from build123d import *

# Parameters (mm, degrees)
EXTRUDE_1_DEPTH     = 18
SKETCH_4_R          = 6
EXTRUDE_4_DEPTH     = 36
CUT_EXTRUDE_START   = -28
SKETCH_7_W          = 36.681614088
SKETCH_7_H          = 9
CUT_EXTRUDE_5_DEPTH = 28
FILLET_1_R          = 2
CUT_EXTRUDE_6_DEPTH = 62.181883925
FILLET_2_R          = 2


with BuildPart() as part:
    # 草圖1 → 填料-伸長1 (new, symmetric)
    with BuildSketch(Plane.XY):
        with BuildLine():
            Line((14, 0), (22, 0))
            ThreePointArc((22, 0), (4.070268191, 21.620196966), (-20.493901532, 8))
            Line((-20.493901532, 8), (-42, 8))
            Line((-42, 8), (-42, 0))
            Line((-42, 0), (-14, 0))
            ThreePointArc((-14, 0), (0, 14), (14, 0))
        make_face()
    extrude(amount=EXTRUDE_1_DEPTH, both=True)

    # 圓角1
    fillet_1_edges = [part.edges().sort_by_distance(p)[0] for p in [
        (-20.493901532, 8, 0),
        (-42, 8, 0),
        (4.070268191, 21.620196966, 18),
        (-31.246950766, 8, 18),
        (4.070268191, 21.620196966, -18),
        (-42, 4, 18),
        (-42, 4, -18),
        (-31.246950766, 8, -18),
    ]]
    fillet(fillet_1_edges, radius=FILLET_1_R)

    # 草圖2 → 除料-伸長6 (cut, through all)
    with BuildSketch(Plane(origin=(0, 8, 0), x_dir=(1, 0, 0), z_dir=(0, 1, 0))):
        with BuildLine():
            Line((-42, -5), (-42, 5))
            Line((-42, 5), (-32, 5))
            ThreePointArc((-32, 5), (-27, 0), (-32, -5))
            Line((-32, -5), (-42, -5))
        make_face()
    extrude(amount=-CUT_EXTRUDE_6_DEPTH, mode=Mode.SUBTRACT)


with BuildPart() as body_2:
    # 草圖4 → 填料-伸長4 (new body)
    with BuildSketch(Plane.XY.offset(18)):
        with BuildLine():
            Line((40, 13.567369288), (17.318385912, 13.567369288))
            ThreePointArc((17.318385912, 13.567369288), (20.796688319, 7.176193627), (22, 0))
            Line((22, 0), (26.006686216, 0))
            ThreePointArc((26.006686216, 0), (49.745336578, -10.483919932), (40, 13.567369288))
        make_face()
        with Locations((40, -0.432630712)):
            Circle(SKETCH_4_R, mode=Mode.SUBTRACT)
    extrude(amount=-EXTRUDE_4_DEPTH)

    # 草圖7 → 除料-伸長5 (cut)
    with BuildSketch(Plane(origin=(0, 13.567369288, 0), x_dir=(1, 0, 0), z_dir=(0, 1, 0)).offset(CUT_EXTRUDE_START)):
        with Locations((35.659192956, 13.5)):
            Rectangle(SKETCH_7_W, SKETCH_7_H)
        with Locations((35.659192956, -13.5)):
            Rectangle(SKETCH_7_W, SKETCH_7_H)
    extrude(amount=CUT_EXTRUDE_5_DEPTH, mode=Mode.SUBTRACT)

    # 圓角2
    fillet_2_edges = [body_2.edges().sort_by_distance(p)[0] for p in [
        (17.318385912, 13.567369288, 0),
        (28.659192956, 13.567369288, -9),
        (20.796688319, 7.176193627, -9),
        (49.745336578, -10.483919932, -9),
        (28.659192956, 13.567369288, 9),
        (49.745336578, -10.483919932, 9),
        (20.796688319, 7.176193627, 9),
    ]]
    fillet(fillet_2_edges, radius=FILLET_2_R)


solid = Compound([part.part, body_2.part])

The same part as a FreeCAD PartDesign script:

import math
import FreeCAD as App
import Part
import Sketcher
from FreeCAD import Vector


def edges_at(feature, points):
    """Names of the edges that pass closest to the given points."""
    edges = feature.Shape.Edges
    near = lambda p: min(range(len(edges)), key=lambda i: edges[i].distToShape(Part.Vertex(*p))[0])
    return sorted({f"Edge{near(p) + 1}" for p in points})

doc = App.newDocument("Part")
params = doc.addObject("Spreadsheet::Sheet", "Params")
for row, (alias, value) in enumerate([
    ("sketch1_radius", "22 mm"),
    ("sketch1_radius2", "14 mm"),
    ("sketch1_width", "28 mm"),
    ("pad1_length", "36 mm"),
    ("fillet_radius", "2 mm"),
    ("sketch2_radius", "5 mm"),
    ("sketch3_diameter", "12 mm"),
    ("sketch3_radius", "22 mm"),
    ("sketch3_radius2", "14 mm"),
    ("pad2_length", "36 mm"),
    ("sketch4_height", "9 mm"),
    ("pocket2_length", "28 mm"),
    ("fillet2_radius", "2 mm"),
], start=1):
    params.set(f"A{row}", alias)
    params.set(f"B{row}", "=" + value)
    params.setAlias(f"B{row}", alias)

body = doc.addObject("PartDesign::Body", "Body")

# Sketch on XY plane
sketch1 = doc.addObject("Sketcher::SketchObject", "Sketch")
body.addObject(sketch1)
sketch1.AttachmentSupport = (doc.XY_Plane, [""])
sketch1.MapMode = "FlatFace"
sketch1.addGeometry([
    Part.LineSegment(Vector(14, 0, 0), Vector(22, 0, 0)),  # 0
    Part.ArcOfCircle(Part.Circle(Vector(0, 0, 0), Vector(0, 0, 1), 22), math.radians(0), math.radians(158.676314)),  # 1
    Part.LineSegment(Vector(-20.493902, 8, 0), Vector(-42, 8, 0)),  # 2
    Part.LineSegment(Vector(-42, 8, 0), Vector(-42, 0, 0)),  # 3
    Part.LineSegment(Vector(-42, 0, 0), Vector(-14, 0, 0)),  # 4
    Part.ArcOfCircle(Part.Circle(Vector(0, 0, 0), Vector(0, 0, 1), 14), math.radians(0), math.radians(180)),  # 5
], False)
sketch1.addConstraint([
    Sketcher.Constraint("Coincident", 0, 2, 1, 1),
    Sketcher.Constraint("Coincident", 1, 2, 2, 1),
    Sketcher.Constraint("Coincident", 2, 2, 3, 1),
    Sketcher.Constraint("Coincident", 3, 2, 4, 1),
    Sketcher.Constraint("Coincident", 4, 2, 5, 2),
    Sketcher.Constraint("Coincident", 5, 1, 0, 1),
    Sketcher.Constraint("Horizontal", 0),
    Sketcher.Constraint("Horizontal", 2),
    Sketcher.Constraint("Vertical", 3),
    Sketcher.Constraint("Horizontal", 4),
    Sketcher.Constraint("Coincident", 1, 3, -1, 1),
    Sketcher.Constraint("Coincident", 5, 3, -1, 1),
    Sketcher.Constraint("PointOnObject", 0, 2, -1),
    Sketcher.Constraint("PointOnObject", 3, 2, -1),
    Sketcher.Constraint("Equal", 0, 3),
    Sketcher.Constraint("Radius", 1, 22.0),
    Sketcher.Constraint("Radius", 5, 14.0),
    Sketcher.Constraint("DistanceX", 4, 1, 4, 2, 28.0),
])
sketch1.setExpression("Constraints[15]", "Params.sketch1_radius")
sketch1.setExpression("Constraints[16]", "Params.sketch1_radius2")
sketch1.setExpression("Constraints[17]", "Params.sketch1_width")
pad1 = doc.addObject("PartDesign::Pad", "Pad")
body.addObject(pad1)
pad1.Profile = sketch1
pad1.setExpression("Length", "Params.pad1_length")
pad1.Midplane = True
doc.recompute()

fillet = doc.addObject("PartDesign::Fillet", "Fillet")
body.addObject(fillet)
fillet.Base = (pad1, edges_at(pad1, [
    (-20.494, 8, 0),
    (-42, 8, 0),
    (4.07, 21.62, 18),
    (-31.247, 8, 18),
    (4.07, 21.62, -18),
    (-42, 4, 18),
    (-42, 4, -18),
    (-31.247, 8, -18),
]))
fillet.setExpression("Radius", "Params.fillet_radius")

# Sketch on XZ plane
sketch2 = doc.addObject("Sketcher::SketchObject", "Sketch001")
body.addObject(sketch2)
sketch2.AttachmentSupport = (doc.XZ_Plane, [""])
sketch2.MapMode = "FlatFace"
sketch2.AttachmentOffset = App.Placement(Vector(0, 0, -8), App.Rotation())
sketch2.addGeometry([
    Part.LineSegment(Vector(-42, -5, 0), Vector(-42, 5, 0)),
    Part.LineSegment(Vector(-42, 5, 0), Vector(-32, 5, 0)),
    Part.ArcOfCircle(Part.Circle(Vector(-32, 0, 0), Vector(0, 0, 1), 5), math.radians(-90), math.radians(90)),
    Part.LineSegment(Vector(-32, -5, 0), Vector(-42, -5, 0)),
], False)
sketch2.addConstraint([
    Sketcher.Constraint("Coincident", 0, 2, 1, 1),
    Sketcher.Constraint("Tangent", 1, 2, 2, 2),
    Sketcher.Constraint("Tangent", 2, 1, 3, 1),
    Sketcher.Constraint("Coincident", 3, 2, 0, 1),
    Sketcher.Constraint("Vertical", 0),
    Sketcher.Constraint("Horizontal", 1),
    Sketcher.Constraint("Horizontal", 3),
    Sketcher.Constraint("PointOnObject", 2, 3, -1),
    Sketcher.Constraint("Equal", 3, 0),
    Sketcher.Constraint("Radius", 2, 5.0),
    Sketcher.Constraint("DistanceX", 2, 3, -1, 1, 32.0),
])
sketch2.setExpression("Constraints[9]", "Params.sketch2_radius")
pocket1 = doc.addObject("PartDesign::Pocket", "Pocket")
body.addObject(pocket1)
pocket1.Profile = sketch2
pocket1.Type = "ThroughAll"
pocket1.Reversed = True
body2 = doc.addObject("PartDesign::Body", "Body001")

# Sketch on XY plane
sketch3 = doc.addObject("Sketcher::SketchObject", "Sketch002")
body2.addObject(sketch3)
sketch3.AttachmentSupport = (doc.getObject("XY_Plane001"), [""])
sketch3.MapMode = "FlatFace"
sketch3.AttachmentOffset = App.Placement(Vector(0, 0, 18), App.Rotation())
sketch3.addGeometry([
    Part.LineSegment(Vector(40, 13.567369, 0), Vector(17.318386, 13.567369, 0)),  # 0
    Part.ArcOfCircle(Part.Circle(Vector(0, 0, 0), Vector(0, 0, 1), 22), math.radians(0), math.radians(38.075448)),  # 1
    Part.LineSegment(Vector(22, 0, 0), Vector(26.006686, 0, 0)),  # 2
    Part.ArcOfCircle(Part.Circle(Vector(40, -0.432631, 0), Vector(0, 0, 1), 14), math.radians(178.229153), math.radians(450)),  # 3
    Part.Circle(Vector(40, -0.432631, 0), Vector(0, 0, 1), 6),  # 4
], False)
sketch3.addConstraint([
    Sketcher.Constraint("Coincident", 0, 2, 1, 2),
    Sketcher.Constraint("Coincident", 1, 1, 2, 1),
    Sketcher.Constraint("Coincident", 2, 2, 3, 1),
    Sketcher.Constraint("Tangent", 3, 2, 0, 1),
    Sketcher.Constraint("Horizontal", 0),
    Sketcher.Constraint("Horizontal", 2),
    Sketcher.Constraint("Coincident", 1, 3, -1, 1),
    Sketcher.Constraint("Coincident", 4, 3, 3, 3),
    Sketcher.Constraint("PointOnObject", 1, 1, -1),
    Sketcher.Constraint("Diameter", 4, 12.0),
    Sketcher.Constraint("Radius", 1, 22.0),
    Sketcher.Constraint("Radius", 3, 14.0),
    Sketcher.Constraint("DistanceX", -1, 1, 3, 3, 40.0),
    Sketcher.Constraint("DistanceX", 0, 2, 2, 2, 8.6883),
])
sketch3.setExpression("Constraints[9]", "Params.sketch3_diameter")
sketch3.setExpression("Constraints[10]", "Params.sketch3_radius")
sketch3.setExpression("Constraints[11]", "Params.sketch3_radius2")
pad2 = doc.addObject("PartDesign::Pad", "Pad001")
body2.addObject(pad2)
pad2.Profile = sketch3
pad2.setExpression("Length", "Params.pad2_length")
pad2.Reversed = True

# Sketch on XZ plane
sketch4 = doc.addObject("Sketcher::SketchObject", "Sketch003")
body2.addObject(sketch4)
sketch4.AttachmentSupport = (doc.getObject("XZ_Plane001"), [""])
sketch4.MapMode = "FlatFace"
sketch4.AttachmentOffset = App.Placement(Vector(0, 0, 14.432631), App.Rotation())
sketch4.addGeometry([
    Part.LineSegment(Vector(17.318386, -18, 0), Vector(17.318386, -9, 0)),  # 0
    Part.LineSegment(Vector(17.318386, -9, 0), Vector(54, -9, 0)),  # 1
    Part.LineSegment(Vector(54, -9, 0), Vector(54, -18, 0)),  # 2
    Part.LineSegment(Vector(54, -18, 0), Vector(17.318386, -18, 0)),  # 3
    Part.LineSegment(Vector(17.318386, 9, 0), Vector(17.318386, 18, 0)),  # 4
    Part.LineSegment(Vector(17.318386, 18, 0), Vector(54, 18, 0)),  # 5
    Part.LineSegment(Vector(54, 18, 0), Vector(54, 9, 0)),  # 6
    Part.LineSegment(Vector(54, 9, 0), Vector(17.318386, 9, 0)),  # 7
], False)
sketch4.addConstraint([
    Sketcher.Constraint("Coincident", 0, 2, 1, 1),
    Sketcher.Constraint("Coincident", 1, 2, 2, 1),
    Sketcher.Constraint("Coincident", 2, 2, 3, 1),
    Sketcher.Constraint("Coincident", 3, 2, 0, 1),
    Sketcher.Constraint("Coincident", 4, 2, 5, 1),
    Sketcher.Constraint("Coincident", 5, 2, 6, 1),
    Sketcher.Constraint("Coincident", 6, 2, 7, 1),
    Sketcher.Constraint("Coincident", 7, 2, 4, 1),
    Sketcher.Constraint("Vertical", 0),
    Sketcher.Constraint("Horizontal", 1),
    Sketcher.Constraint("Vertical", 2),
    Sketcher.Constraint("Horizontal", 3),
    Sketcher.Constraint("Vertical", 4),
    Sketcher.Constraint("Horizontal", 5),
    Sketcher.Constraint("Vertical", 6),
    Sketcher.Constraint("Horizontal", 7),
    Sketcher.Constraint("Symmetric", 3, 2, 4, 2, -1),
    Sketcher.Constraint("Symmetric", 1, 2, 6, 2, -1),
    Sketcher.Constraint("DistanceY", 0, 1, 0, 2, 9.0),
    Sketcher.Constraint("DistanceY", 0, 2, -1, 1, 9.0),
    Sketcher.Constraint("DistanceX", -1, 1, 1, 2, 54.0),
    Sketcher.Constraint("DistanceX", 1, 1, 1, 2, 36.681614),
])
sketch4.setExpression("Constraints[18]", "Params.sketch4_height")
pocket2 = doc.addObject("PartDesign::Pocket", "Pocket001")
body2.addObject(pocket2)
pocket2.Profile = sketch4
pocket2.setExpression("Length", "Params.pocket2_length")
doc.recompute()

fillet2 = doc.addObject("PartDesign::Fillet", "Fillet001")
body2.addObject(fillet2)
fillet2.Base = (pocket2, edges_at(pocket2, [
    (17.318, 13.567, 0),
    (28.659, 13.567, -9),
    (20.797, 7.176, -9),
    (49.745, -10.484, -9),
    (28.659, 13.567, 9),
    (49.745, -10.484, 9),
    (20.797, 7.176, 9),
]))
fillet2.setExpression("Radius", "Params.fillet2_radius")

doc.recompute()
